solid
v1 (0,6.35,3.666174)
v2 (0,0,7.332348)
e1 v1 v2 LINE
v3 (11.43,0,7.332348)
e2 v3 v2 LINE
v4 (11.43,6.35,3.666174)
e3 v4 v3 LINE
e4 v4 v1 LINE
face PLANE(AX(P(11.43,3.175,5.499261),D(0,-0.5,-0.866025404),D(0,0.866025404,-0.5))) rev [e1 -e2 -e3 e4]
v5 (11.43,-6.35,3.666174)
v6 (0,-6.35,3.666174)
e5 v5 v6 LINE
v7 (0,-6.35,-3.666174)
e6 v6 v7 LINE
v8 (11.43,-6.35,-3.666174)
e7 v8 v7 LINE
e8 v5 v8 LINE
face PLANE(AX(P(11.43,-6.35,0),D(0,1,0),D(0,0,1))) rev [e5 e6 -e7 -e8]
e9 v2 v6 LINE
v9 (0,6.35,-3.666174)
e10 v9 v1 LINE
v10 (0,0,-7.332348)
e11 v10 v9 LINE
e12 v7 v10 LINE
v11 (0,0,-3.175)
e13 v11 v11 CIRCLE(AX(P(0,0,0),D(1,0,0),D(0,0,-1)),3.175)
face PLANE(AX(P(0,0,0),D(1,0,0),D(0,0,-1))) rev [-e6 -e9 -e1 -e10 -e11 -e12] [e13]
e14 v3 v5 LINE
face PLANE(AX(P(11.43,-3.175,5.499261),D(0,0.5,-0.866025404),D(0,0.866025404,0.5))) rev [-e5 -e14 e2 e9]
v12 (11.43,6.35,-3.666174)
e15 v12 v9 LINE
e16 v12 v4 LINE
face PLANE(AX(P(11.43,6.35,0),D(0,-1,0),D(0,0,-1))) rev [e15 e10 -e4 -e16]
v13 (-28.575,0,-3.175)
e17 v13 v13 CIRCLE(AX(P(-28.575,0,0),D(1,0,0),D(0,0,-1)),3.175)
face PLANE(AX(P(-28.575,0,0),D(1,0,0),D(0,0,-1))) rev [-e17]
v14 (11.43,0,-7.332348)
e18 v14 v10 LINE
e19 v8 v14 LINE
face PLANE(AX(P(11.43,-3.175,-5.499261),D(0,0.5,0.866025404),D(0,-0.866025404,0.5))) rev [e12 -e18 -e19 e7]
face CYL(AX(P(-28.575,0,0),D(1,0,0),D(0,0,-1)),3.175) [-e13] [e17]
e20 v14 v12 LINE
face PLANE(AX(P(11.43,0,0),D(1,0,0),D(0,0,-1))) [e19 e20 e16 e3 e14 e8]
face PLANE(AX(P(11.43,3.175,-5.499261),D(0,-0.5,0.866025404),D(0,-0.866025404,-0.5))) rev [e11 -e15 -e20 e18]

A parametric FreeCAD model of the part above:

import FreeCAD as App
import Part
import Sketcher
from FreeCAD import Vector
Q = App.Units.Quantity


def add_polygon(sketch, points):
    """Adds a closed chain of lines whose ends are joined by coincident constraints."""
    first, n = sketch.GeometryCount, len(points)
    for a, b in zip(points, points[1:] + points[:1]):
        sketch.addGeometry(Part.LineSegment(App.Vector(*a, 0), App.Vector(*b, 0)), False)
    for i in range(n):
        sketch.addConstraint(Sketcher.Constraint("Coincident", first + i, 2, first + (i + 1) % n, 1))

doc = App.newDocument("Part")
body = doc.addObject("PartDesign::Body", "Body")

# Sketch on YZ plane
sketch1 = doc.addObject("Sketcher::SketchObject", "Sketch")
body.addObject(sketch1)
sketch1.AttachmentSupport = (doc.YZ_Plane, [""])
sketch1.MapMode = "FlatFace"
add_polygon(sketch1, [(-6, -4), (0, -7), (6, -4), (6, 4), (0, 7), (-6, 4)])  # lines 0-5
sketch1.addConstraint([
    Sketcher.Constraint("Vertical", 2),
    Sketcher.Constraint("Vertical", 5),
    Sketcher.Constraint("Symmetric", 0, 2, 3, 2, -1, 1),
    Sketcher.Constraint("Symmetric", 1, 2, 4, 2, -1, 1),
    Sketcher.Constraint("PointOnObject", 0, 2, -2),
    Sketcher.Constraint("Parallel", 0, 3),
    Sketcher.Constraint("Horizontal", 2, 2, 4, 2),
    Sketcher.Constraint("Angle", 0, Q("-30 deg")),
    Sketcher.Constraint("DistanceX", 4, 2, 2, 2, Q("0.5 in")),
    Sketcher.Constraint("DistanceY", 2, 1, 2, 2, Q("7.332348 mm")),
])
pad1 = doc.addObject("PartDesign::Pad", "Pad")
body.addObject(pad1)
pad1.Profile = sketch1
pad1.Length = Q("0.45 in")

# Sketch on YZ plane
sketch2 = doc.addObject("Sketcher::SketchObject", "Sketch001")
body.addObject(sketch2)
sketch2.AttachmentSupport = (doc.YZ_Plane, [""])
sketch2.MapMode = "FlatFace"
sketch2.addGeometry(Part.Circle(Vector(0, 0, 0), Vector(0, 0, 1), 3.2), False)
sketch2.addConstraint([
    Sketcher.Constraint("Coincident", 0, 3, -1, 1),
    Sketcher.Constraint("Diameter", 0, Q("0.25 in")),
])
pad2 = doc.addObject("PartDesign::Pad", "Pad001")
body.addObject(pad2)
pad2.Profile = sketch2
pad2.Length = Q("1.125 in")
pad2.Reversed = True

doc.recompute()
